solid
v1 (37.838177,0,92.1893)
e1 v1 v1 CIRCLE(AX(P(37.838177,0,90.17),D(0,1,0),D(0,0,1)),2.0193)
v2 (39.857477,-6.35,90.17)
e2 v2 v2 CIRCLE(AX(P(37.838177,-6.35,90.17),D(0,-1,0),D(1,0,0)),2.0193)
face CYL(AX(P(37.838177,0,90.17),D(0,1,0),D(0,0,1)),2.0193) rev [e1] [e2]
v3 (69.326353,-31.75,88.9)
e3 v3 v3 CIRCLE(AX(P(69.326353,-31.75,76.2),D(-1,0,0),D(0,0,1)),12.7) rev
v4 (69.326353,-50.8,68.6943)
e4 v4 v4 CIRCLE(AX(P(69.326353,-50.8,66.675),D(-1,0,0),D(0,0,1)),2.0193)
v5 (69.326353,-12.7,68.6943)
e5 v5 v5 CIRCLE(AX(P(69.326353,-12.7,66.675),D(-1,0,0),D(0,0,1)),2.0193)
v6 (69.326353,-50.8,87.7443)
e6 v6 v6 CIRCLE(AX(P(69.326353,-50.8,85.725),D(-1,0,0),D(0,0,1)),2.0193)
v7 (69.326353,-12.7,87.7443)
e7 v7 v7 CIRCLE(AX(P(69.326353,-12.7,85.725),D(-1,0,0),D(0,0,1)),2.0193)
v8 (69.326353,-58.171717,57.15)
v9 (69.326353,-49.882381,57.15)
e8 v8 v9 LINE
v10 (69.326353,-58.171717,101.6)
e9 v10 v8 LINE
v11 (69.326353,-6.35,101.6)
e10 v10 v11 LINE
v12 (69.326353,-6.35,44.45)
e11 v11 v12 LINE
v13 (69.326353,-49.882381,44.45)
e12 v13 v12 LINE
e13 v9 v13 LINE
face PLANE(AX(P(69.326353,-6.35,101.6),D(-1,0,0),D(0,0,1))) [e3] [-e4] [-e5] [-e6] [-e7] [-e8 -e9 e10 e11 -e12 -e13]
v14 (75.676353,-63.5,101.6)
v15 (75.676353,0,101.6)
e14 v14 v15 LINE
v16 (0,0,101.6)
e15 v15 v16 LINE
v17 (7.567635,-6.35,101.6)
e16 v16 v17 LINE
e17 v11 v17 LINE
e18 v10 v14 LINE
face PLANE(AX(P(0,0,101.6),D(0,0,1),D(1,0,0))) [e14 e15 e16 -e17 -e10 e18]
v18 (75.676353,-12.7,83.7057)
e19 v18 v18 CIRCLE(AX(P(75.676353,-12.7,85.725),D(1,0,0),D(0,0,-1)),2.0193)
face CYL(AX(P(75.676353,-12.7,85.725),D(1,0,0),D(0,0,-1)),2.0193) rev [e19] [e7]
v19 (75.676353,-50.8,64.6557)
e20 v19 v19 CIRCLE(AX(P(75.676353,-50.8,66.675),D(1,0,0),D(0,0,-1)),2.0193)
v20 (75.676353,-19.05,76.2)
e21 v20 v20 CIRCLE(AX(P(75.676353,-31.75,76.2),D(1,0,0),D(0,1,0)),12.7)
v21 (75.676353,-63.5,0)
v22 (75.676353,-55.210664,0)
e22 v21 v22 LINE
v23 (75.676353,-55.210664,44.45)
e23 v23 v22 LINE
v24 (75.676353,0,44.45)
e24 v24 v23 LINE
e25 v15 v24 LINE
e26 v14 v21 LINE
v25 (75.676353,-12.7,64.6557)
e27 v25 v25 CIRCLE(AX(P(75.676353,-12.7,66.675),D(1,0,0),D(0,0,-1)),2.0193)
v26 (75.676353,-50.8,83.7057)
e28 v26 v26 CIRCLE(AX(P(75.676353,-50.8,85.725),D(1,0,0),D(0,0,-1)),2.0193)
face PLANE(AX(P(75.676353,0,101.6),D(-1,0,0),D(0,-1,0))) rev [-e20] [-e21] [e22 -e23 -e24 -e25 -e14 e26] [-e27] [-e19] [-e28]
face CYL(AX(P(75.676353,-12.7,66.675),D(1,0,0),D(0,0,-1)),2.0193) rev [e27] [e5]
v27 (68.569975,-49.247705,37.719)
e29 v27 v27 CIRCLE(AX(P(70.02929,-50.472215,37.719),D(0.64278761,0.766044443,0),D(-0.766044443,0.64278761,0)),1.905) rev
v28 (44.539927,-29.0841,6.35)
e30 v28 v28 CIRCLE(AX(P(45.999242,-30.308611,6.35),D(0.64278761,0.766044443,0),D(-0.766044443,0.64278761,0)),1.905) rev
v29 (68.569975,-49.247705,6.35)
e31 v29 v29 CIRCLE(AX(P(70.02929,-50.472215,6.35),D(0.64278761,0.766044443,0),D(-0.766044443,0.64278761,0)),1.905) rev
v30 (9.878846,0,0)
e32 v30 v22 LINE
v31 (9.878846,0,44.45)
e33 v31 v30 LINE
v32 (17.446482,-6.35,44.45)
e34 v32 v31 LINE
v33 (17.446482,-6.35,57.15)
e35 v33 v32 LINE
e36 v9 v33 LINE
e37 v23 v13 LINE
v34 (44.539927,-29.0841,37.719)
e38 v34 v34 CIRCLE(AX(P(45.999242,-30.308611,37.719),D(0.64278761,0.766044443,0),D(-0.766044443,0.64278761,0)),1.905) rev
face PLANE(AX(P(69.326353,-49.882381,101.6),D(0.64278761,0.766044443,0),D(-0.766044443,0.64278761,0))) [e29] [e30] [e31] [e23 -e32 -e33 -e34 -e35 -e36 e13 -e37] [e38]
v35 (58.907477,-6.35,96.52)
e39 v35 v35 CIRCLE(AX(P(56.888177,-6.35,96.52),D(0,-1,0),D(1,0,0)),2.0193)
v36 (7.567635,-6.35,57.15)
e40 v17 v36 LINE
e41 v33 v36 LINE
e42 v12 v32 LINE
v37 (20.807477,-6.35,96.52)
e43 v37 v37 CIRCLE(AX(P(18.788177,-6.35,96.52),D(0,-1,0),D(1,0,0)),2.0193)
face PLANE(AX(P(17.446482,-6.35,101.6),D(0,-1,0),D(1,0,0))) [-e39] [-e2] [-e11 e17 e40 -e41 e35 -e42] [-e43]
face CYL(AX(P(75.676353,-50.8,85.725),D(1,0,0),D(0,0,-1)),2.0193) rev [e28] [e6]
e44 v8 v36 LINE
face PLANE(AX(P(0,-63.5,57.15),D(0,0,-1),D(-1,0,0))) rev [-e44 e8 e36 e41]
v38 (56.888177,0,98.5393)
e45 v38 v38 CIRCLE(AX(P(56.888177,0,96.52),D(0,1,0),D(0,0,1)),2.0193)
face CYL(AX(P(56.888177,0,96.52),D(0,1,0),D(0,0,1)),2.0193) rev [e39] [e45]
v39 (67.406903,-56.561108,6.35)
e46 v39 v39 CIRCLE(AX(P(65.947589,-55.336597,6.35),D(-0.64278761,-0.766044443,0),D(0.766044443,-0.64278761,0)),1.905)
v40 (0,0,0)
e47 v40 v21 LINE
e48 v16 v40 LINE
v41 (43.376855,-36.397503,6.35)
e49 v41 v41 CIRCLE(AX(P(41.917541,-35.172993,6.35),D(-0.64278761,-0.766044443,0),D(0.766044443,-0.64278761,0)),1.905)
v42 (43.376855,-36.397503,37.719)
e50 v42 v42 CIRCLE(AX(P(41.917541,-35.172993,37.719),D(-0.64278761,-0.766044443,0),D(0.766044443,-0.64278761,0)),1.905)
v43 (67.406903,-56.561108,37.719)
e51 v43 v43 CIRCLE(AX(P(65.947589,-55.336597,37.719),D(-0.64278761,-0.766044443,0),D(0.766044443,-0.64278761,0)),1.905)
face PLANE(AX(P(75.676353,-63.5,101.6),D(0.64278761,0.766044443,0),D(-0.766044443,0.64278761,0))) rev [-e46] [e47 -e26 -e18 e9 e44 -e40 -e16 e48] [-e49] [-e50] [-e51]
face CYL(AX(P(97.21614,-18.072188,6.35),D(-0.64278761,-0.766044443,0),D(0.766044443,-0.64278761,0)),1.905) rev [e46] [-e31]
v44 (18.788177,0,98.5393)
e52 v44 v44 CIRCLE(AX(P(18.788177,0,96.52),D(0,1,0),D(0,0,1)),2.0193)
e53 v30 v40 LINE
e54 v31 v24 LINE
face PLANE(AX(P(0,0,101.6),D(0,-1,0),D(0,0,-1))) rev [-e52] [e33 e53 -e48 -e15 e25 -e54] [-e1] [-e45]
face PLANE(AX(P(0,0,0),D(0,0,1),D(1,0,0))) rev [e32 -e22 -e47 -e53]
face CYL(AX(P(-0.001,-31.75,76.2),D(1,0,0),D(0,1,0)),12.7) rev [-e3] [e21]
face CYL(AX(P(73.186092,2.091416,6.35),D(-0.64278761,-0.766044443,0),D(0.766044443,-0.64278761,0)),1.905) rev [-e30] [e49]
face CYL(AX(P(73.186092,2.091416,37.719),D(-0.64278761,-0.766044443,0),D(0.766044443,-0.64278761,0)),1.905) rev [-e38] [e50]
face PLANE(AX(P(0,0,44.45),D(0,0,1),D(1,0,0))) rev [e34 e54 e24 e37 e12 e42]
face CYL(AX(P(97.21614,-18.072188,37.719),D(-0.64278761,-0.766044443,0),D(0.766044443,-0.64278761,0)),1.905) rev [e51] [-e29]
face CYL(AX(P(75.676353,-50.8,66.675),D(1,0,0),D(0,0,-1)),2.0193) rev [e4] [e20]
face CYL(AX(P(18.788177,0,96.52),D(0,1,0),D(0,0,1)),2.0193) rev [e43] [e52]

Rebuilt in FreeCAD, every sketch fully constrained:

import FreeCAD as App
import Part
import Sketcher
from FreeCAD import Vector
Q = App.Units.Quantity


def add_polygon(sketch, points):
    """Adds a closed chain of lines whose ends are joined by coincident constraints."""
    first, n = sketch.GeometryCount, len(points)
    for a, b in zip(points, points[1:] + points[:1]):
        sketch.addGeometry(Part.LineSegment(App.Vector(*a, 0), App.Vector(*b, 0)), False)
    for i in range(n):
        sketch.addConstraint(Sketcher.Constraint("Coincident", first + i, 2, first + (i + 1) % n, 1))

doc = App.newDocument("Part")
body = doc.addObject("PartDesign::Body", "Body")

sketch1 = doc.addObject("Sketcher::SketchObject", "Sketch")
body.addObject(sketch1)
sketch1.AttachmentSupport = (doc.XY_Plane, [""])
sketch1.MapMode = "FlatFace"
add_polygon(sketch1, [(75.676353, 0), (0, 0), (75.676353, -63.5)])
add_polygon(sketch1, [(17.446482, -6.35), (69.326353, -6.35), (69.326353, -49.882381)])
sketch1.addConstraint(Sketcher.Constraint("Horizontal", 0))
sketch1.addConstraint(Sketcher.Constraint("Vertical", 2))
sketch1.addConstraint(Sketcher.Constraint("Horizontal", 3))
sketch1.addConstraint(Sketcher.Constraint("Vertical", 4))
sketch1.addConstraint(Sketcher.Constraint("Coincident", 0, 2, -1, 1))
sketch1.addConstraint(Sketcher.Constraint("Parallel", 1, 5))
sketch1.addConstraint(Sketcher.Constraint("DistanceY", 2, 1, 2, 2, Q("2.5 in")))
sketch1.addConstraint(Sketcher.Constraint("Angle", 1, Q("-40 deg")))
sketch1.addConstraint(Sketcher.Constraint("DistanceY", 3, 2, -1, 1, Q("0.25 in")))
sketch1.addConstraint(Sketcher.Constraint("DistanceX", 3, 2, 2, 2, Q("0.25 in")))
sketch1.addConstraint(Sketcher.Constraint("DistanceX", 3, 1, 3, 2, Q("51.879872 mm")))
pad1 = doc.addObject("PartDesign::Pad", "Pad")
body.addObject(pad1)
pad1.Profile = sketch1
pad1.Length = Q("4 in")

sketch2 = doc.addObject("Sketcher::SketchObject", "Sketch001")
body.addObject(sketch2)
sketch2.AttachmentSupport = (doc.XZ_Plane, [""])
sketch2.MapMode = "FlatFace"
sketch2.AttachmentOffset = App.Placement(Vector(0, 0, 0.25 * 25.4), App.Rotation())
add_polygon(sketch2, [(0, 57.15), (0, 101.6), (69.326353, 101.6), (69.326353, 57.15)])
sketch2.addConstraint(Sketcher.Constraint("Vertical", 0))
sketch2.addConstraint(Sketcher.Constraint("Horizontal", 1))
sketch2.addConstraint(Sketcher.Constraint("Vertical", 2))
sketch2.addConstraint(Sketcher.Constraint("Horizontal", 3))
sketch2.addConstraint(Sketcher.Constraint("PointOnObject", 0, 2, -2))
sketch2.addConstraint(Sketcher.Constraint("DistanceY", -1, 1, 0, 2, Q("4 in")))
sketch2.addConstraint(Sketcher.Constraint("DistanceY", 0, 1, 0, 2, Q("1.75 in")))
sketch2.addConstraint(Sketcher.Constraint("DistanceX", 1, 1, 1, 2, Q("69.326353 mm")))
pocket1 = doc.addObject("PartDesign::Pocket", "Pocket")
body.addObject(pocket1)
pocket1.Profile = sketch2
pocket1.Type = "ThroughAll"
pocket1.Reversed = True

sketch3 = doc.addObject("Sketcher::SketchObject", "Sketch002")
body.addObject(sketch3)
sketch3.AttachmentSupport = (doc.YZ_Plane, [""])
sketch3.MapMode = "FlatFace"
sketch3.AttachmentOffset = App.Placement(Vector(0, 0, 75.676353), App.Rotation())
sketch3.addGeometry(Part.Circle(Vector(-31.75, 76.2, 0), Vector(0, 0, 1), 12.7), False)
sketch3.addConstraint(Sketcher.Constraint("Diameter", 0, Q("1 in")))
sketch3.addConstraint(Sketcher.Constraint("DistanceY", -1, 1, 0, 3, Q("3 in")))
sketch3.addConstraint(Sketcher.Constraint("DistanceX", 0, 3, -1, 1, Q("1.25 in")))
pocket2 = doc.addObject("PartDesign::Pocket", "Pocket001")
body.addObject(pocket2)
pocket2.Profile = sketch3
pocket2.Type = "UpToFirst"

sketch4 = doc.addObject("Sketcher::SketchObject", "Sketch003")
body.addObject(sketch4)
sketch4.AttachmentSupport = (doc.YZ_Plane, [""])
sketch4.MapMode = "FlatFace"
sketch4.AttachmentOffset = App.Placement(Vector(0, 0, 75.676353), App.Rotation())
sketch4.addGeometry(Part.Circle(Vector(-50.8, 85.725, 0), Vector(0, 0, 1), 2.0193), False)
sketch4.addGeometry(Part.Circle(Vector(-50.8, 66.675, 0), Vector(0, 0, 1), 2.0193), False)
sketch4.addGeometry(Part.Circle(Vector(-12.7, 85.725, 0), Vector(0, 0, 1), 2.0193), False)
sketch4.addGeometry(Part.Circle(Vector(-12.7, 66.675, 0), Vector(0, 0, 1), 2.0193), False)
sketch4.addConstraint(Sketcher.Constraint("Equal", 0, 1))
sketch4.addConstraint(Sketcher.Constraint("Equal", 1, 2))
sketch4.addConstraint(Sketcher.Constraint("Equal", 2, 3))
sketch4.addConstraint(Sketcher.Constraint("Horizontal", 0, 3, 2, 3))
sketch4.addConstraint(Sketcher.Constraint("Horizontal", 1, 3, 3, 3))
sketch4.addConstraint(Sketcher.Constraint("Vertical", 0, 3, 1, 3))
sketch4.addConstraint(Sketcher.Constraint("Vertical", 2, 3, 3, 3))
sketch4.addConstraint(Sketcher.Constraint("Diameter", 0, Q("0.159 in")))
sketch4.addConstraint(Sketcher.Constraint("DistanceX", 0, 3, -1, 1, Q("2 in")))
sketch4.addConstraint(Sketcher.Constraint("DistanceX", 2, 3, -1, 1, Q("0.5 in")))
sketch4.addConstraint(Sketcher.Constraint("DistanceY", 1, 3, 0, 3, Q("0.75 in")))
sketch4.addConstraint(Sketcher.Constraint("DistanceY", -1, 1, 0, 3, Q("3.375 in")))
doc.recompute()
hole = doc.addObject("PartDesign::Hole", "Hole")
body.addObject(hole)
hole.Profile = sketch4
hole.ThreadType = "None"
hole.Diameter = Q("0.159 in")
hole.DepthType = "Dimension"
hole.Depth = Q("0.25 in")
hole.DrillPoint = "Flat"

sketch5 = doc.addObject("Sketcher::SketchObject", "Sketch004")
body.addObject(sketch5)
sketch5.AttachmentSupport = (doc.XZ_Plane, [""])
sketch5.MapMode = "FlatFace"
sketch5.addGeometry(Part.Circle(Vector(56.888177, 96.52, 0), Vector(0, 0, 1), 2.0193), False)
sketch5.addGeometry(Part.Circle(Vector(37.838177, 90.17, 0), Vector(0, 0, 1), 2.0193), False)
sketch5.addGeometry(Part.Circle(Vector(18.788177, 96.52, 0), Vector(0, 0, 1), 2.0193), False)
sketch5.addConstraint(Sketcher.Constraint("Equal", 0, 1))
sketch5.addConstraint(Sketcher.Constraint("Equal", 1, 2))
sketch5.addConstraint(Sketcher.Constraint("Horizontal", 0, 3, 2, 3))
sketch5.addConstraint(Sketcher.Constraint("Diameter", 0, Q("0.159 in")))
sketch5.addConstraint(Sketcher.Constraint("DistanceY", -1, 1, 0, 3, Q("3.8 in")))
sketch5.addConstraint(Sketcher.Constraint("DistanceX", 2, 3, 0, 3, Q("1.5 in")))
sketch5.addConstraint(Sketcher.Constraint("DistanceY", -1, 1, 1, 3, Q("3.55 in")))
sketch5.addConstraint(Sketcher.Constraint("DistanceX", 1, 3, 0, 3, Q("0.75 in")))
sketch5.addConstraint(Sketcher.Constraint("DistanceX", -1, 1, 0, 3, Q("56.888177 mm")))
doc.recompute()
hole2 = doc.addObject("PartDesign::Hole", "Hole001")
body.addObject(hole2)
hole2.Profile = sketch5
hole2.ThreadType = "None"
hole2.Diameter = Q("0.159 in")
hole2.DepthType = "Dimension"
hole2.Depth = Q("0.25 in")
hole2.DrillPoint = "Flat"
hole2.Reversed = True

sketch6 = doc.addObject("Sketcher::SketchObject", "Sketch005")
body.addObject(sketch6)
sketch6.AttachmentSupport = (doc.XY_Plane, [""])
sketch6.MapMode = "FlatFace"
add_polygon(sketch6, [(75.676353, -55.210664), (9.878846, 0), (75.676353, 0)])
sketch6.addConstraint(Sketcher.Constraint("Horizontal", 1))
sketch6.addConstraint(Sketcher.Constraint("Vertical", 2))
sketch6.addConstraint(Sketcher.Constraint("PointOnObject", 0, 2, -1))
sketch6.addConstraint(Sketcher.Constraint("Angle", 0, Q("140 deg")))
sketch6.addConstraint(Sketcher.Constraint("DistanceX", 1, 1, 1, 2, Q("65.797507 mm")))
sketch6.addConstraint(Sketcher.Constraint("DistanceX", -1, 1, 0, 2, Q("9.878846 mm")))
pocket3 = doc.addObject("PartDesign::Pocket", "Pocket002")
body.addObject(pocket3)
pocket3.Profile = sketch6
pocket3.Length = Q("1.75 in")
pocket3.Reversed = True

sketch7 = doc.addObject("Sketcher::SketchObject", "Sketch006")
body.addObject(sketch7)
sketch7.Placement = App.Placement(Vector(0, 0, 0), App.Rotation(Vector(0.766044443, -0.64278761, 0), Vector(0, 0, 1), Vector(-0.64278761, -0.766044443, 0), "ZXY"))
sketch7.addGeometry(Part.Circle(Vector(54.719463, 37.719, 0), Vector(0, 0, 1), 1.905), False)
sketch7.addConstraint(Sketcher.Constraint("Diameter", 0, Q("0.15 in")))
sketch7.addConstraint(Sketcher.Constraint("DistanceY", -1, 1, 0, 3, Q("1.485 in")))
sketch7.addConstraint(Sketcher.Constraint("DistanceX", -1, 1, 0, 3, Q("54.719463 mm")))
pocket4 = doc.addObject("PartDesign::Pocket", "Pocket003")
body.addObject(pocket4)
pocket4.Profile = sketch7
pocket4.Type = "UpToFirst"

sketch8 = doc.addObject("Sketcher::SketchObject", "Sketch007")
body.addObject(sketch8)
sketch8.Placement = App.Placement(Vector(0, 0, 0), App.Rotation(Vector(0.766044443, -0.64278761, 0), Vector(0, 0, 1), Vector(-0.64278761, -0.766044443, 0), "ZXY"))
sketch8.addGeometry(Part.Circle(Vector(86.088463, 37.719, 0), Vector(0, 0, 1), 1.905), False)
sketch8.addConstraint(Sketcher.Constraint("Diameter", 0, Q("0.15 in")))
sketch8.addConstraint(Sketcher.Constraint("DistanceY", -1, 1, 0, 3, Q("1.485 in")))
sketch8.addConstraint(Sketcher.Constraint("DistanceX", -1, 1, 0, 3, Q("86.088463 mm")))
pocket5 = doc.addObject("PartDesign::Pocket", "Pocket004")
body.addObject(pocket5)
pocket5.Profile = sketch8
pocket5.Type = "UpToFirst"

sketch9 = doc.addObject("Sketcher::SketchObject", "Sketch008")
body.addObject(sketch9)
sketch9.Placement = App.Placement(Vector(0, 0, 0), App.Rotation(Vector(0.766044443, -0.64278761, 0), Vector(0, 0, 1), Vector(-0.64278761, -0.766044443, 0), "ZXY"))
sketch9.addGeometry(Part.Circle(Vector(54.719463, 6.35, 0), Vector(0, 0, 1), 1.905), False)
sketch9.addConstraint(Sketcher.Constraint("Diameter", 0, Q("0.15 in")))
sketch9.addConstraint(Sketcher.Constraint("DistanceY", -1, 1, 0, 3, Q("0.25 in")))
sketch9.addConstraint(Sketcher.Constraint("DistanceX", -1, 1, 0, 3, Q("54.719463 mm")))
pocket6 = doc.addObject("PartDesign::Pocket", "Pocket005")
body.addObject(pocket6)
pocket6.Profile = sketch9
pocket6.Type = "UpToFirst"

sketch10 = doc.addObject("Sketcher::SketchObject", "Sketch009")
body.addObject(sketch10)
sketch10.Placement = App.Placement(Vector(0, 0, 0), App.Rotation(Vector(0.766044443, -0.64278761, 0), Vector(0, 0, 1), Vector(-0.64278761, -0.766044443, 0), "ZXY"))
sketch10.addGeometry(Part.Circle(Vector(86.088463, 6.35, 0), Vector(0, 0, 1), 1.905), False)
sketch10.addConstraint(Sketcher.Constraint("Diameter", 0, Q("0.15 in")))
sketch10.addConstraint(Sketcher.Constraint("DistanceY", -1, 1, 0, 3, Q("0.25 in")))
sketch10.addConstraint(Sketcher.Constraint("DistanceX", -1, 1, 0, 3, Q("86.088463 mm")))
pocket7 = doc.addObject("PartDesign::Pocket", "Pocket006")
body.addObject(pocket7)
pocket7.Profile = sketch10
pocket7.Type = "UpToFirst"

doc.recompute()
